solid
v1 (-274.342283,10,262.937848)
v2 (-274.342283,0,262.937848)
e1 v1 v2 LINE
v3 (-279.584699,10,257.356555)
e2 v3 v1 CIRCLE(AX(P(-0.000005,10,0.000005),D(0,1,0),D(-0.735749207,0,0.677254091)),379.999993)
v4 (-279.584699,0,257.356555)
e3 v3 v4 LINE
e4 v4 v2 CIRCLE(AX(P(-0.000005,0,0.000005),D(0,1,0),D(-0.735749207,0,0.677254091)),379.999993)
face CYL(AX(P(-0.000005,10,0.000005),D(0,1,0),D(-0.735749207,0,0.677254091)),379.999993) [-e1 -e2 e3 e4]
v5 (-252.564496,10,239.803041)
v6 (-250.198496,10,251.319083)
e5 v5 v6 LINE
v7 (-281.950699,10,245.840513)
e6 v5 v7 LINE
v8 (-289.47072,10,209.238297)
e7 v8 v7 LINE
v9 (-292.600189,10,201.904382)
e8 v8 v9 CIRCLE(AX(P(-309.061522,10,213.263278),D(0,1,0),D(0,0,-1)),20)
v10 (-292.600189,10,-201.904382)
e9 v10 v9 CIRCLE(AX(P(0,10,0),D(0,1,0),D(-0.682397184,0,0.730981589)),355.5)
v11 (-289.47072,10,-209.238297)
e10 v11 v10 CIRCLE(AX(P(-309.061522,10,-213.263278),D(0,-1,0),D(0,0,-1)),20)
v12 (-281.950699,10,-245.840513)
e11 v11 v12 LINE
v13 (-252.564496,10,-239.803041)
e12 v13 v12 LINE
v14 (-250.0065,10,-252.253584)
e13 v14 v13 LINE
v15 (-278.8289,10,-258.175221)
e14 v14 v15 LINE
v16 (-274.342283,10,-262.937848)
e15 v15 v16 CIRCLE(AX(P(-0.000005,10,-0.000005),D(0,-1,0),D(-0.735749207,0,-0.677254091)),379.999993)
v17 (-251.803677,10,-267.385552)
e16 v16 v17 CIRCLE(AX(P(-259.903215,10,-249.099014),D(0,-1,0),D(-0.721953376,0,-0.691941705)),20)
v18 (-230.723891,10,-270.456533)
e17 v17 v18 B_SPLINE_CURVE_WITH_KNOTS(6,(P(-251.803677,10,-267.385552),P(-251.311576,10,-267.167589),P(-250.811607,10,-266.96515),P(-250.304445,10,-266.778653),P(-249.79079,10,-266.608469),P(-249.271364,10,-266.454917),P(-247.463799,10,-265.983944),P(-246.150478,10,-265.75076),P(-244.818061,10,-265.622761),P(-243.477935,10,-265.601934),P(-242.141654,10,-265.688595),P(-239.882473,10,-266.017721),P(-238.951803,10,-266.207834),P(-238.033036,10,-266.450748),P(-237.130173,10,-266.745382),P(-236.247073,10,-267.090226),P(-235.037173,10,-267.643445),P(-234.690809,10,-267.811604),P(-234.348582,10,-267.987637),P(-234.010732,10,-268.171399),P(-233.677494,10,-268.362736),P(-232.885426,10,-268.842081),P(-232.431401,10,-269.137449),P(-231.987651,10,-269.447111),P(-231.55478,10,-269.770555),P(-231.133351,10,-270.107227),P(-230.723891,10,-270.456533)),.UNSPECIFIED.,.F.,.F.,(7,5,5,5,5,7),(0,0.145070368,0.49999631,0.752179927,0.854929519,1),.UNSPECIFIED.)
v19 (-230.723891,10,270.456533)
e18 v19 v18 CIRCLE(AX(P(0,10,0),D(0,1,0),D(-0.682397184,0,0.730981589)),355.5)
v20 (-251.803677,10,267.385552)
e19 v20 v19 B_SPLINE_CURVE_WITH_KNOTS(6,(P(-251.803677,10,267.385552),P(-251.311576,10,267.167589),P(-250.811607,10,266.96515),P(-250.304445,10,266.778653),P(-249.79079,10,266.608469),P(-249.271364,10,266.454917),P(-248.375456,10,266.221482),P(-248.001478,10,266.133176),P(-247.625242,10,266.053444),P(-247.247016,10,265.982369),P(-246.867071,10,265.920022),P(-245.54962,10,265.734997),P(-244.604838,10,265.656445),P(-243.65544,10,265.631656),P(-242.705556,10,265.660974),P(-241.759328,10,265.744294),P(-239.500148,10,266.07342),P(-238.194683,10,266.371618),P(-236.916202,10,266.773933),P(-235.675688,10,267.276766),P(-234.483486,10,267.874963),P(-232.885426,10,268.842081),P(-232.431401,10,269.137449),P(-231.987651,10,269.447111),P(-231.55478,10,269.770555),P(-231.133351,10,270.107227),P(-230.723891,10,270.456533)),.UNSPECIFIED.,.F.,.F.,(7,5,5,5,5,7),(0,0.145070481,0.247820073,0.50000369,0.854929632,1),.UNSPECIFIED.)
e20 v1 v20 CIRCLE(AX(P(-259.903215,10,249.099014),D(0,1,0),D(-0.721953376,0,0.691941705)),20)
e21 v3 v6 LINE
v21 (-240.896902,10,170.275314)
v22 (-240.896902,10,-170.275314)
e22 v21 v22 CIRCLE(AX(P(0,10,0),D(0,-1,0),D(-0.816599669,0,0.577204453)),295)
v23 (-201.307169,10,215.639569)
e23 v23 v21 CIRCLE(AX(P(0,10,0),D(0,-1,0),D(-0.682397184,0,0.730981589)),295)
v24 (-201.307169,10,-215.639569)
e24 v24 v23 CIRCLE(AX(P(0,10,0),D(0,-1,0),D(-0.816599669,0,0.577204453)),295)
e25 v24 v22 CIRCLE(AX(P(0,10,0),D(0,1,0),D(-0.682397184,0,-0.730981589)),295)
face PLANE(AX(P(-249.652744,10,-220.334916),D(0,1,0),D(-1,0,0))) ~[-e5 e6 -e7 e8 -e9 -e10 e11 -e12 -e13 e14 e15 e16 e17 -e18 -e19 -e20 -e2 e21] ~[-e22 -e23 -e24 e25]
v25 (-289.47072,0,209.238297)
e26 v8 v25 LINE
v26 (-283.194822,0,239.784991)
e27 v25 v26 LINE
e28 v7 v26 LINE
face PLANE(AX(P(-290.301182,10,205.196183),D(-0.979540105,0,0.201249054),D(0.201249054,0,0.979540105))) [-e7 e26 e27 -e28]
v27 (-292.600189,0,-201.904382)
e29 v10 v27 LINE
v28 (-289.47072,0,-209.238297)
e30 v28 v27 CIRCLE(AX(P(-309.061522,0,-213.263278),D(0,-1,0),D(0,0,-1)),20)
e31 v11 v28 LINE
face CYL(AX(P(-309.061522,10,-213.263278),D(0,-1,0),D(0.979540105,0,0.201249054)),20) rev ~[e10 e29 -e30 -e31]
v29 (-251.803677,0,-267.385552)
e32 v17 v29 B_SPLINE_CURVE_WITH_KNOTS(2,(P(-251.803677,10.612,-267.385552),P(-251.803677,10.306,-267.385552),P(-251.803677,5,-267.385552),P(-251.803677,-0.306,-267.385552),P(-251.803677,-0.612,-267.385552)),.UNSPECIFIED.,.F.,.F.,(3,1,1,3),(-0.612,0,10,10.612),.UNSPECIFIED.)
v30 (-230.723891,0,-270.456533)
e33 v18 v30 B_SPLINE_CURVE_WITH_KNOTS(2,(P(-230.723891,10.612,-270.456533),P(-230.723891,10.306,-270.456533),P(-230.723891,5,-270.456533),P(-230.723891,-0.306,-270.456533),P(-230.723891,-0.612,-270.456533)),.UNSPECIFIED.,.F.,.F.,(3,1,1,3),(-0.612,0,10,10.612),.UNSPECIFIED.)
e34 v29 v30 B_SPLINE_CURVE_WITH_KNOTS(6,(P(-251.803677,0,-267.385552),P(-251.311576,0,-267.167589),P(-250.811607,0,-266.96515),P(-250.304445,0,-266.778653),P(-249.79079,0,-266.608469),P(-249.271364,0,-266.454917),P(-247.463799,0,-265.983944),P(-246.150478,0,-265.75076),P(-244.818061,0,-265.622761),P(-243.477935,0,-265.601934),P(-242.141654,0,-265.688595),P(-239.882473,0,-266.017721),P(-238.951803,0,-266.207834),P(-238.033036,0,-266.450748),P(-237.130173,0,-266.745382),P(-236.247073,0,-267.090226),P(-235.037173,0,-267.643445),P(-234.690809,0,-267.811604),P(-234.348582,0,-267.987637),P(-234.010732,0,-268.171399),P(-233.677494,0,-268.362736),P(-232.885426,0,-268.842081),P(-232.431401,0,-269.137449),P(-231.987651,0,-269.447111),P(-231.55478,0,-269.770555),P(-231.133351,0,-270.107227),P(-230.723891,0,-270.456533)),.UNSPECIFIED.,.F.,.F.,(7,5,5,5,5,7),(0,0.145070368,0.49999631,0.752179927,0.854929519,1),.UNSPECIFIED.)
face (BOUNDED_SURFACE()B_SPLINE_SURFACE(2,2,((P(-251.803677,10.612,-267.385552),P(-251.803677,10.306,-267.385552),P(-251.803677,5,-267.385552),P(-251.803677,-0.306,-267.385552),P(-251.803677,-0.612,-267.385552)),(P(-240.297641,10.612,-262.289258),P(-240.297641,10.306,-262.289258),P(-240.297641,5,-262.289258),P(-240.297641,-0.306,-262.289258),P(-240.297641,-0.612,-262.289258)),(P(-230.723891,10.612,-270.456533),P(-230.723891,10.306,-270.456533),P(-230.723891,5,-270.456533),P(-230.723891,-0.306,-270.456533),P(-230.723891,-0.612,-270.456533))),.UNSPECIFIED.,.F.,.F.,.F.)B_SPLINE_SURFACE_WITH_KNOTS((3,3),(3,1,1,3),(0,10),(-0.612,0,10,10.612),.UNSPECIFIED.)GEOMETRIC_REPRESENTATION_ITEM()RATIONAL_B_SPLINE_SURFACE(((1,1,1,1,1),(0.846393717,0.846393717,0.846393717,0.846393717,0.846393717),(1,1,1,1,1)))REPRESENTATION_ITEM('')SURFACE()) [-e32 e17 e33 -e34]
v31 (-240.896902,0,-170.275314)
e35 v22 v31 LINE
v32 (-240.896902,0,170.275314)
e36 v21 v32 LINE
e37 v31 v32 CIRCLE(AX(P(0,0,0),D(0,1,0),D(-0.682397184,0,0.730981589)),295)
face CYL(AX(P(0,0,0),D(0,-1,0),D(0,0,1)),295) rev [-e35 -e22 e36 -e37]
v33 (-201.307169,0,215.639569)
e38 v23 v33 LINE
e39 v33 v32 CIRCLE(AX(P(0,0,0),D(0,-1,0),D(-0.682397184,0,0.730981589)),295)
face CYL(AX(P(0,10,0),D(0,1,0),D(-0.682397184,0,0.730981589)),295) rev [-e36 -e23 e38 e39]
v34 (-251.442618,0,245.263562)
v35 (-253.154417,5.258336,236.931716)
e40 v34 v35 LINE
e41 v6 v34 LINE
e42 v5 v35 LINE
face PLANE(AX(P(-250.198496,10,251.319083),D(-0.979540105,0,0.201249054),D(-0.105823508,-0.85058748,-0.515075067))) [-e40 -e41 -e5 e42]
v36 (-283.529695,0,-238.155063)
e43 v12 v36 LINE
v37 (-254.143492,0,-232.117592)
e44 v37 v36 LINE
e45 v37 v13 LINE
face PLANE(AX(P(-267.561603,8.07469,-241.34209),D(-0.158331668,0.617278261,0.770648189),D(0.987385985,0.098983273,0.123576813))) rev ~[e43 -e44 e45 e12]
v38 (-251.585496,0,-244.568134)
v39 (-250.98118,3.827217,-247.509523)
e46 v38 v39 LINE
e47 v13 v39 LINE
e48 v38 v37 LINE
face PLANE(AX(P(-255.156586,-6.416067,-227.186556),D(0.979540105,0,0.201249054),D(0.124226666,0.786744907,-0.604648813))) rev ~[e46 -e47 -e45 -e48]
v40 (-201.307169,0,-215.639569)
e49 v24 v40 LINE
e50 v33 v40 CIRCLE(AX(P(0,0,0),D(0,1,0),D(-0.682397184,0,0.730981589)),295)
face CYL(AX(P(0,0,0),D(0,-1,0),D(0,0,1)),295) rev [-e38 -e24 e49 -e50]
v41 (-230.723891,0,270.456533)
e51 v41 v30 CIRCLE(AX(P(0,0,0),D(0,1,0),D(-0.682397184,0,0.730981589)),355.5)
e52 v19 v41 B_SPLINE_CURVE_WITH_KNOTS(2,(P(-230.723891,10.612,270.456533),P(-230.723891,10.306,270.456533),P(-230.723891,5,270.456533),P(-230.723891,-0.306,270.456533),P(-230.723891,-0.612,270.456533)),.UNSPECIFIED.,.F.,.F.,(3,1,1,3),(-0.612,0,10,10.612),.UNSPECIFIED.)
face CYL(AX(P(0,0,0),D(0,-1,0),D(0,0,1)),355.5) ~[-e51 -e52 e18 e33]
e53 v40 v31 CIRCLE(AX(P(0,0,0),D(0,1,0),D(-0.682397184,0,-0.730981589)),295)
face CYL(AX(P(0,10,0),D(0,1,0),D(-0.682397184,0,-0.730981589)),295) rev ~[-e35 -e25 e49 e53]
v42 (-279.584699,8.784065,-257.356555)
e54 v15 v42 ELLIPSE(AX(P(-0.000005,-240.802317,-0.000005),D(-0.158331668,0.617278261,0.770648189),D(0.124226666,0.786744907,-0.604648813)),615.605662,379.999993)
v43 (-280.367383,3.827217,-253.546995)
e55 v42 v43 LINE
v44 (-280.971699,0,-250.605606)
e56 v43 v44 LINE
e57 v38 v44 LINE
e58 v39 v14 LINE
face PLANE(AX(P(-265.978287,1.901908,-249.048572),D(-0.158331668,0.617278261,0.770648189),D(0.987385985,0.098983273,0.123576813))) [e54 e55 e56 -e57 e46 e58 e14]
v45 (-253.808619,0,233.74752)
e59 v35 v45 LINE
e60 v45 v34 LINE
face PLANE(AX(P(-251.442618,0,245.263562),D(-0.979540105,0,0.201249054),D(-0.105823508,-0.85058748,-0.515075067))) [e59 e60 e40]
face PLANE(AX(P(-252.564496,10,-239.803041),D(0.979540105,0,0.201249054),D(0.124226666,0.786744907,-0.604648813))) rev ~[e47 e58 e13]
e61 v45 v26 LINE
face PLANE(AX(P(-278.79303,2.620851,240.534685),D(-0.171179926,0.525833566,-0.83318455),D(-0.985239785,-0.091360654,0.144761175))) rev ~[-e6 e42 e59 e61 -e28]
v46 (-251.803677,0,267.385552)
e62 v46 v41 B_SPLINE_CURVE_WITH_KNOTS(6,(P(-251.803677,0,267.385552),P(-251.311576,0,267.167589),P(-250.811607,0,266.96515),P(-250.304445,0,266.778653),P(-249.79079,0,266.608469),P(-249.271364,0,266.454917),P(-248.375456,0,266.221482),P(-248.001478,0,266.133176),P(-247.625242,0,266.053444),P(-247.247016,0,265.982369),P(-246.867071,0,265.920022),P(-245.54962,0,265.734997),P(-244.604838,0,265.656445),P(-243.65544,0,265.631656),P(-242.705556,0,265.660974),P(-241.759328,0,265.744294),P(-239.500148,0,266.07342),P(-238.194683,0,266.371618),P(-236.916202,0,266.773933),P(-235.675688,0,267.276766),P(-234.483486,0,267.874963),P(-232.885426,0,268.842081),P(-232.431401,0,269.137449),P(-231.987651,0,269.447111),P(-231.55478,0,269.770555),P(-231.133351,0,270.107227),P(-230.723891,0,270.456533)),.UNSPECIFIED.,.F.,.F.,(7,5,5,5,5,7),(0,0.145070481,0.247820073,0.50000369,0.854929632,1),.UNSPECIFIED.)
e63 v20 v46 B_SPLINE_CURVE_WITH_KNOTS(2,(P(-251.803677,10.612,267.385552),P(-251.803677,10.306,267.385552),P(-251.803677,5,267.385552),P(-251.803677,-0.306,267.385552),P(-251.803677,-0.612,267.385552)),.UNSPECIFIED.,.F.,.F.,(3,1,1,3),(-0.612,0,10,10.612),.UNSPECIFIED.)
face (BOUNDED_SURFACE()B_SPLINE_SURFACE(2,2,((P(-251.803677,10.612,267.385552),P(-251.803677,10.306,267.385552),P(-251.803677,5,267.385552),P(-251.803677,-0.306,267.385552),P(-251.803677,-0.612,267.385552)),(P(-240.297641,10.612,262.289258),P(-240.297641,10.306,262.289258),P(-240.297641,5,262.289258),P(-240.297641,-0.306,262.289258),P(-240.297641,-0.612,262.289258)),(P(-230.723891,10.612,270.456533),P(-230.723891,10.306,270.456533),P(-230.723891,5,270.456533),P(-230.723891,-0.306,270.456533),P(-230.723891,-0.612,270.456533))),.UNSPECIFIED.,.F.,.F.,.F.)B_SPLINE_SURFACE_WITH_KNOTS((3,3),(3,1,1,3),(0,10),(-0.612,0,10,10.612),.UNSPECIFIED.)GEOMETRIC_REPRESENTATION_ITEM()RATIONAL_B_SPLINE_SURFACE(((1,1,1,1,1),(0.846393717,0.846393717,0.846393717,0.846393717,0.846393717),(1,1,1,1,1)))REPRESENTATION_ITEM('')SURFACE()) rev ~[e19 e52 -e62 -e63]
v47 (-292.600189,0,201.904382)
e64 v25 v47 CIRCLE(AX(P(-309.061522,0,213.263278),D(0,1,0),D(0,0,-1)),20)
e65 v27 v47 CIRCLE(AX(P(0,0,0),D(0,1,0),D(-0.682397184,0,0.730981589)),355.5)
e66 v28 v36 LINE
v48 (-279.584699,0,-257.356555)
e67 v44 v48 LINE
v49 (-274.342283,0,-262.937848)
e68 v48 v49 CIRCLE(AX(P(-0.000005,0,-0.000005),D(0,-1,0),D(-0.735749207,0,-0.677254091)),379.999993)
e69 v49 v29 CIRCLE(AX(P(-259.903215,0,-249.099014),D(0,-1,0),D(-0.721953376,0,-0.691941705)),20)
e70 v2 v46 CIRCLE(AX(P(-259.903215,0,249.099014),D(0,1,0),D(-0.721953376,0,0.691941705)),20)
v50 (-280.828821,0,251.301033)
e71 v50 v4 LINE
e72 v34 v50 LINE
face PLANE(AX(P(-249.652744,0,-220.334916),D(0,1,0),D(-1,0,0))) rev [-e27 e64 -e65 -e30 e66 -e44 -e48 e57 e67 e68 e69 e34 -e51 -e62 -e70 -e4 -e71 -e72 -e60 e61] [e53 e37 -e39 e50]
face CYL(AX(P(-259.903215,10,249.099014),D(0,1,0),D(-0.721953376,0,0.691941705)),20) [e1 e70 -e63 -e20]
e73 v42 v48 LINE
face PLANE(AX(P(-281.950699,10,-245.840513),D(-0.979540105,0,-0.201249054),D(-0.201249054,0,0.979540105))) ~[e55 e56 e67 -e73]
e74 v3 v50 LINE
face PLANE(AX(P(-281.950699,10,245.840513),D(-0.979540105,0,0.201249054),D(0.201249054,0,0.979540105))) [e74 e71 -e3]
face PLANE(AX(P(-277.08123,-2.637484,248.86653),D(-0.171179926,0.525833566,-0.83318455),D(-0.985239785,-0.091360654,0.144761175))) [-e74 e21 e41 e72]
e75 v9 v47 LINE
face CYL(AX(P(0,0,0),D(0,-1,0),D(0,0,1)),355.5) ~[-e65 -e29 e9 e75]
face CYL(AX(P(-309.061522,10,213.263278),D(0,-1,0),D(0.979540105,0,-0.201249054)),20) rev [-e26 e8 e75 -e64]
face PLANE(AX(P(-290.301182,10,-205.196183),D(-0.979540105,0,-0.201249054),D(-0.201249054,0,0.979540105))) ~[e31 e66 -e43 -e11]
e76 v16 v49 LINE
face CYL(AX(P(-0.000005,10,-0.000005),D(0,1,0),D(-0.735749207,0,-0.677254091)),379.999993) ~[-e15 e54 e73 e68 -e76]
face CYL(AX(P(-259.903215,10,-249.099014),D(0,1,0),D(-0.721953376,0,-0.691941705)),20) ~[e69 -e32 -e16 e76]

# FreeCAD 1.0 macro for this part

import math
import FreeCAD as App
import Part
import Sketcher
from FreeCAD import Vector
Q = App.Units.Quantity


def edges_at(feature, points):
    """Names of the edges that pass closest to the given points."""
    edges = feature.Shape.Edges
    near = lambda p: min(range(len(edges)), key=lambda i: edges[i].distToShape(Part.Vertex(*p))[0])
    return sorted({f"Edge{near(p) + 1}" for p in points})


def add_polygon(sketch, points):
    """Adds a closed chain of lines whose ends are joined by coincident constraints."""
    first, n = sketch.GeometryCount, len(points)
    for a, b in zip(points, points[1:] + points[:1]):
        sketch.addGeometry(Part.LineSegment(App.Vector(*a, 0), App.Vector(*b, 0)), False)
    for i in range(n):
        sketch.addConstraint(Sketcher.Constraint("Coincident", first + i, 2, first + (i + 1) % n, 1))

doc = App.newDocument("Part")
body = doc.addObject("PartDesign::Body", "Body")

# Sketch on XZ plane
sketch1 = body.newObject("Sketcher::SketchObject", "Sketch")
sketch1.AttachmentSupport = (doc.getObject("XZ_Plane"), [""])
sketch1.MapMode = "FlatFace"
sketch1.addGeometry(Part.Circle(Vector(0, 0, 0), Vector(0, 0, 1), 356), False)
sketch1.addGeometry(Part.Circle(Vector(0, 0, 0), Vector(0, 0, 1), 295), False)
sketch1.addConstraint(Sketcher.Constraint("Coincident", 0, 3, -1, 1))
sketch1.addConstraint(Sketcher.Constraint("Coincident", 1, 3, -1, 1))
sketch1.addConstraint(Sketcher.Constraint("Diameter", 0, 711.0))
sketch1.addConstraint(Sketcher.Constraint("Diameter", 1, 590.0))
pad1 = body.newObject("PartDesign::Pad", "Pad")
pad1.Profile = sketch1
pad1.Length = 10
pad1.Reversed = True

# Sketch on XZ plane
sketch2 = body.newObject("Sketcher::SketchObject", "Sketch001")
sketch2.AttachmentSupport = (doc.getObject("XZ_Plane"), [""])
sketch2.MapMode = "FlatFace"
sketch2.AttachmentOffset = App.Placement(Vector(0, 0, -10), App.Rotation())
sketch2.addGeometry(Part.LineSegment(Vector(-245, 263, 0), Vector(-201, 216, 0)), False)
sketch2.addGeometry(Part.ArcOfCircle(Part.Circle(Vector(0, 0, 0), Vector(0, 0, 1), 295), math.radians(133.03), math.radians(144.75)), False)
sketch2.addGeometry(Part.LineSegment(Vector(-241, 170, 0), Vector(-290, 205, 0)), False)
sketch2.addGeometry(Part.LineSegment(Vector(-290, 205, 0), Vector(-282, 246, 0)), False)
sketch2.addGeometry(Part.LineSegment(Vector(-282, 246, 0), Vector(-280, 257, 0)), False)
sketch2.addGeometry(Part.ArcOfCircle(Part.Circle(Vector(0, 0, 0), Vector(0, 0, 1), 380), math.radians(136.22), math.radians(137.37)), False)
sketch2.addGeometry(Part.ArcOfCircle(Part.Circle(Vector(-260, 249, 0), Vector(0, 0, 1), 20), math.radians(43), math.radians(136)), False)
sketch2.addConstraint(Sketcher.Constraint("Coincident", 0, 2, 1, 1))
sketch2.addConstraint(Sketcher.Constraint("Coincident", 1, 2, 2, 1))
sketch2.addConstraint(Sketcher.Constraint("Coincident", 2, 2, 3, 1))
sketch2.addConstraint(Sketcher.Constraint("Coincident", 3, 2, 4, 1))
sketch2.addConstraint(Sketcher.Constraint("Coincident", 4, 2, 5, 2))
sketch2.addConstraint(Sketcher.Constraint("Tangent", 5, 1, 6, 2))
sketch2.addConstraint(Sketcher.Constraint("Tangent", 6, 1, 0, 1))
sketch2.addConstraint(Sketcher.Constraint("Coincident", 1, 3, -1, 1))
sketch2.addConstraint(Sketcher.Constraint("Coincident", 5, 3, -1, 1))
sketch2.addConstraint(Sketcher.Constraint("Parallel", 3, 4))
sketch2.addConstraint(Sketcher.Constraint("Radius", 1, 295.0))
sketch2.addConstraint(Sketcher.Constraint("Radius", 6, 20.0))
sketch2.addConstraint(Sketcher.Constraint("Distance", 2, 60.5))
sketch2.addConstraint(Sketcher.Constraint("Angle", 3, Q("78.38999 deg")))
sketch2.addConstraint(Sketcher.Constraint("Radius", 5, 379.999993))
sketch2.addConstraint(Sketcher.Constraint("DistanceX", 3, 2, 4, 2, 2.366001))
sketch2.addConstraint(Sketcher.Constraint("DistanceX", 3, 2, -1, 1, 281.950699))
sketch2.addConstraint(Sketcher.Constraint("DistanceY", 1, 2, 6, 3, 78.8237))
sketch2.addConstraint(Sketcher.Constraint("DistanceY", 3, 2, 6, 3, 3.258501))
sketch2.addConstraint(Sketcher.Constraint("DistanceX", 0, 2, -1, 1, 201.307169))
pad2 = body.newObject("PartDesign::Pad", "Pad001")
pad2.Profile = sketch2
pad2.Length = 10
doc.recompute()

fillet = body.newObject("PartDesign::Fillet", "Fillet")
fillet.Base = (pad2, edges_at(pad2, [(-242.592, 5, 259.864), (-290.301, 5, 205.196)]))
fillet.Radius = 20

# Sketch on an angled plane
sketch3 = body.newObject("Sketcher::SketchObject", "Sketch002")
sketch3.Placement = App.Placement(Vector(27.612671, -84.821099, 134.399235), App.Rotation(Vector(0.985239785, 0.091360654, -0.144761175), Vector(-0.000000001, 0.845666774, 0.53371126), Vector(0.171179926, -0.525833566, 0.83318455), "ZXY"))
add_polygon(sketch3, [(-285, 116), (-283, 131), (-282, 143), (-312, 146), (-331, 148), (-337, 117)])  # lines 0-5
sketch3.addConstraint(Sketcher.Constraint("Parallel", 0, 1))
sketch3.addConstraint(Sketcher.Constraint("Perpendicular", 1, 2))
sketch3.addConstraint(Sketcher.Constraint("Parallel", 2, 3))
sketch3.addConstraint(Sketcher.Constraint("Distance", 2, 30.0))
sketch3.addConstraint(Sketcher.Constraint("DistanceX", 2, 2, -1, 1, 311.799599))
sketch3.addConstraint(Sketcher.Constraint("DistanceX", 3, 2, 1, 2, 48.569198))
sketch3.addConstraint(Sketcher.Constraint("Distance", 0, 15.206449))
sketch3.addConstraint(Sketcher.Constraint("Distance", 1, 11.75658))
sketch3.addConstraint(Sketcher.Constraint("Distance", 3, 18.851809))
sketch3.addConstraint(Sketcher.Constraint("DistanceY", -1, 1, 2, 2, 145.810759))
sketch3.addConstraint(Sketcher.Constraint("DistanceY", 4, 2, 0, 2, 13.835791))
sketch3.addConstraint(Sketcher.Constraint("Distance", 4, 31.379904))
pocket1 = body.newObject("PartDesign::Pocket", "Pocket")
pocket1.Profile = sketch3
pocket1.Length = 10
doc.recompute()

mirrored = body.newObject("PartDesign::Mirrored", "Mirrored")
mirrored.Originals = [pad2]
mirrored.MirrorPlane = (doc.getObject("XY_Plane"), [""])
body.Tip = mirrored
doc.recompute()

fillet2 = body.newObject("PartDesign::Fillet", "Fillet001")
fillet2.Base = (mirrored, edges_at(mirrored, [(-242.592, 5, -259.864), (-290.301, 5, -205.196)]))
fillet2.Radius = 20

# Sketch on an angled plane
sketch4 = body.newObject("Sketcher::SketchObject", "Sketch003")
sketch4.Placement = App.Placement(Vector(21.951425, -85.580717, -106.844236), App.Rotation(Vector(0.987385985, 0.098983273, 0.123576813), Vector(0, 0.780493344, -0.62516409), Vector(-0.158331668, 0.617278261, 0.770648189), "ZXY"))
add_polygon(sketch4, [(-278, 158), (-276, 174), (-306, 177), (-308, 161), (-310, 141), (-281, 137)])  # lines 0-5
sketch4.addConstraint(Sketcher.Constraint("Perpendicular", 0, 1))
sketch4.addConstraint(Sketcher.Constraint("Perpendicular", 1, 2))
sketch4.addConstraint(Sketcher.Constraint("Parallel", 2, 3))
sketch4.addConstraint(Sketcher.Constraint("Perpendicular", 3, 4))
sketch4.addConstraint(Sketcher.Constraint("Perpendicular", 4, 5))
sketch4.addConstraint(Sketcher.Constraint("Equal", 0, 2))
sketch4.addConstraint(Sketcher.Constraint("Distance", 1, 30.0))
sketch4.addConstraint(Sketcher.Constraint("DistanceX", 1, 2, -1, 1, 305.775098))
sketch4.addConstraint(Sketcher.Constraint("Distance", 0, 15.971439))
sketch4.addConstraint(Sketcher.Constraint("DistanceX", 0, 2, -1, 1, 276.013481))
sketch4.addConstraint(Sketcher.Constraint("DistanceY", -1, 1, 0, 2, 173.565711))
sketch4.addConstraint(Sketcher.Constraint("DistanceY", -1, 1, 3, 2, 140.795589))
pocket2 = body.newObject("PartDesign::Pocket", "Pocket001")
pocket2.Profile = sketch4
pocket2.Length = 10

doc.recompute()
